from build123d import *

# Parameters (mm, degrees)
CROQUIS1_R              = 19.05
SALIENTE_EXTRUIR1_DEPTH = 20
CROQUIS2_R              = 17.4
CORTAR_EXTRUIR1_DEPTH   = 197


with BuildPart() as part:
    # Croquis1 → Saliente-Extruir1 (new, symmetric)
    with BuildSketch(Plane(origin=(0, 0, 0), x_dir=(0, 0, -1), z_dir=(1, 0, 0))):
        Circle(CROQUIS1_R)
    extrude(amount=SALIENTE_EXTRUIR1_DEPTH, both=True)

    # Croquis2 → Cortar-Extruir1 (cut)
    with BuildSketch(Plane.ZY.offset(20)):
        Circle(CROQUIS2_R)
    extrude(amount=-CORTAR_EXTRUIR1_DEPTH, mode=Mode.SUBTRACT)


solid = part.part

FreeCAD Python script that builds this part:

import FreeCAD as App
import Part
import Sketcher

V = App.Vector

doc = App.newDocument("Part")
body = doc.addObject("PartDesign::Body", "Body")

sketch1 = body.newObject("Sketcher::SketchObject", "Sketch")
sketch1.AttachmentSupport = (doc.getObject("YZ_Plane"), [""])
sketch1.MapMode = "FlatFace"
sketch1.addGeometry(Part.Circle(V(0, 0, 0), V(0, 0, 1), 19.05), False)
sketch1.addConstraint(Sketcher.Constraint("Coincident", 0, 3, -1, 1))
sketch1.addConstraint(Sketcher.Constraint("Diameter", 0, 38.1))
pad1 = body.newObject("PartDesign::Pad", "Pad")
pad1.Profile = sketch1
pad1.Length = 40
pad1.Midplane = True

sketch2 = body.newObject("Sketcher::SketchObject", "Sketch001")
sketch2.AttachmentSupport = (doc.getObject("YZ_Plane"), [""])
sketch2.MapMode = "FlatFace"
sketch2.AttachmentOffset = App.Placement(V(0, 0, -20), App.Rotation())
sketch2.addGeometry(Part.Circle(V(0, 0, 0), V(0, 0, 1), 17.4), False)
sketch2.addConstraint(Sketcher.Constraint("Coincident", 0, 3, -1, 1))
sketch2.addConstraint(Sketcher.Constraint("Diameter", 0, 34.8))
pocket1 = body.newObject("PartDesign::Pocket", "Pocket")
pocket1.Profile = sketch2
pocket1.Length = 197
pocket1.Reversed = True

doc.recompute()
